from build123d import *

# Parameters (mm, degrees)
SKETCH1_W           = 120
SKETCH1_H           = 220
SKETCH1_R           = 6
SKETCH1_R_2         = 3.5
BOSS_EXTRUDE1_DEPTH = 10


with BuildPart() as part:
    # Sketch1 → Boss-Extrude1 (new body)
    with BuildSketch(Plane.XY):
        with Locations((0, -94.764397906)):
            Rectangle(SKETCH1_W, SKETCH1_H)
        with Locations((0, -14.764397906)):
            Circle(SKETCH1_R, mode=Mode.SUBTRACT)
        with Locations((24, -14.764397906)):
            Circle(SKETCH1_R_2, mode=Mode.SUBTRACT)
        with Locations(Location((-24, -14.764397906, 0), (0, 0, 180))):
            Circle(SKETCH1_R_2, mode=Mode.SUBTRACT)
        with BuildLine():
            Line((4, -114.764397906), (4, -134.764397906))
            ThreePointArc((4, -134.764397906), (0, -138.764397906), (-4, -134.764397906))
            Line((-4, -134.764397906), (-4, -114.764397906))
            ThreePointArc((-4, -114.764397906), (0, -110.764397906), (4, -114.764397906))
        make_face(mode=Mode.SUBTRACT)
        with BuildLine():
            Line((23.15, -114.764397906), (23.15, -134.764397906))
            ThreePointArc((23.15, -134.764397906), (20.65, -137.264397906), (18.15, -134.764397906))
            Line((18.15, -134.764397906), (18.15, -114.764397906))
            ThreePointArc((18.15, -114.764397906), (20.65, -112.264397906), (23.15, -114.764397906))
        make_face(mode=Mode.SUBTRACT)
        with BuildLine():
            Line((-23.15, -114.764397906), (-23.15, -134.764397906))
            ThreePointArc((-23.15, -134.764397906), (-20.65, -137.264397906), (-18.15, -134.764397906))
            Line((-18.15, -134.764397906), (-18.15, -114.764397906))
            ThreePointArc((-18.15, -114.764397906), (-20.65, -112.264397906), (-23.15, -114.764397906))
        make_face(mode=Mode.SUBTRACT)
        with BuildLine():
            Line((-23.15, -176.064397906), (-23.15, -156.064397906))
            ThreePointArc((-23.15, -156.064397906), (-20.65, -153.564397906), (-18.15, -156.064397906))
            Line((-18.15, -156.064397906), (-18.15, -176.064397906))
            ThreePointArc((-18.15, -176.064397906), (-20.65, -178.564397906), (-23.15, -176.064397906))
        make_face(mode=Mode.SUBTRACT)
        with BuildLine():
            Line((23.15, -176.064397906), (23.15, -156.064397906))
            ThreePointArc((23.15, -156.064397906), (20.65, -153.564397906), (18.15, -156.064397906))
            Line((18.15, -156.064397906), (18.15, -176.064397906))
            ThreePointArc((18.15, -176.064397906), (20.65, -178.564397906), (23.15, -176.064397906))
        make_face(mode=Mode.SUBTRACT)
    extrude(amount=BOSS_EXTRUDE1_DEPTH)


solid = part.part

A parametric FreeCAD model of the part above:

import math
import FreeCAD as App
import Part
import Sketcher
from FreeCAD import Vector
Q = App.Units.Quantity


def add_polygon(sketch, points):
    """Adds a closed chain of lines whose ends are joined by coincident constraints."""
    first, n = sketch.GeometryCount, len(points)
    for a, b in zip(points, points[1:] + points[:1]):
        sketch.addGeometry(Part.LineSegment(App.Vector(*a, 0), App.Vector(*b, 0)), False)
    for i in range(n):
        sketch.addConstraint(Sketcher.Constraint("Coincident", first + i, 2, first + (i + 1) % n, 1))

doc = App.newDocument("Part")
body = doc.addObject("PartDesign::Body", "Body")

sketch1 = body.newObject("Sketcher::SketchObject", "Sketch")
sketch1.AttachmentSupport = (doc.getObject("XY_Plane"), [""])
sketch1.MapMode = "FlatFace"
add_polygon(sketch1, [(-60, 15.235602), (-60, -204.764398), (60, -204.764398), (60, 15.235602)])
sketch1.addGeometry(Part.ArcOfCircle(Part.Circle(Vector(-20.65, -176.064398, 0), Vector(0, 0, 1), 2.5), math.radians(180), math.radians(360)), False)
sketch1.addGeometry(Part.LineSegment(Vector(-23.15, -176.064398, 0), Vector(-23.15, -156.064398, 0)), False)
sketch1.addGeometry(Part.ArcOfCircle(Part.Circle(Vector(-20.65, -156.064398, 0), Vector(0, 0, 1), 2.5), math.radians(0), math.radians(180)), False)
sketch1.addGeometry(Part.LineSegment(Vector(-18.15, -156.064398, 0), Vector(-18.15, -176.064398, 0)), False)
sketch1.addGeometry(Part.LineSegment(Vector(-23.15, -134.764398, 0), Vector(-23.15, -114.764398, 0)), False)
sketch1.addGeometry(Part.ArcOfCircle(Part.Circle(Vector(-20.65, -114.764398, 0), Vector(0, 0, 1), 2.5), math.radians(0), math.radians(180)), False)
sketch1.addGeometry(Part.LineSegment(Vector(-18.15, -114.764398, 0), Vector(-18.15, -134.764398, 0)), False)
sketch1.addGeometry(Part.ArcOfCircle(Part.Circle(Vector(-20.65, -134.764398, 0), Vector(0, 0, 1), 2.5), math.radians(180), math.radians(360)), False)
sketch1.addGeometry(Part.LineSegment(Vector(23.15, -156.064398, 0), Vector(23.15, -176.064398, 0)), False)
sketch1.addGeometry(Part.ArcOfCircle(Part.Circle(Vector(20.65, -176.064398, 0), Vector(0, 0, 1), 2.5), math.radians(180), math.radians(360)), False)
sketch1.addGeometry(Part.LineSegment(Vector(18.15, -176.064398, 0), Vector(18.15, -156.064398, 0)), False)
sketch1.addGeometry(Part.ArcOfCircle(Part.Circle(Vector(20.65, -156.064398, 0), Vector(0, 0, 1), 2.5), math.radians(0), math.radians(180)), False)
sketch1.addGeometry(Part.ArcOfCircle(Part.Circle(Vector(0, -114.764398, 0), Vector(0, 0, 1), 4), math.radians(0), math.radians(180)), False)
sketch1.addGeometry(Part.LineSegment(Vector(4, -114.764398, 0), Vector(4, -134.764398, 0)), False)
sketch1.addGeometry(Part.ArcOfCircle(Part.Circle(Vector(0, -134.764398, 0), Vector(0, 0, 1), 4), math.radians(180), math.radians(360)), False)
sketch1.addGeometry(Part.LineSegment(Vector(-4, -134.764398, 0), Vector(-4, -114.764398, 0)), False)
sketch1.addGeometry(Part.ArcOfCircle(Part.Circle(Vector(20.65, -114.764398, 0), Vector(0, 0, 1), 2.5), math.radians(0), math.radians(180)), False)
sketch1.addGeometry(Part.LineSegment(Vector(23.15, -114.764398, 0), Vector(23.15, -134.764398, 0)), False)
sketch1.addGeometry(Part.ArcOfCircle(Part.Circle(Vector(20.65, -134.764398, 0), Vector(0, 0, 1), 2.5), math.radians(180), math.radians(360)), False)
sketch1.addGeometry(Part.LineSegment(Vector(18.15, -134.764398, 0), Vector(18.15, -114.764398, 0)), False)
sketch1.addGeometry(Part.Circle(Vector(-24, -14.764398, 0), Vector(0, 0, 1), 3.5), False)
sketch1.addGeometry(Part.Circle(Vector(0, -14.764398, 0), Vector(0, 0, 1), 6), False)
sketch1.addGeometry(Part.Circle(Vector(24, -14.764398, 0), Vector(0, 0, 1), 3.5), False)
sketch1.addConstraint(Sketcher.Constraint("Tangent", 4, 1, 5, 1))
sketch1.addConstraint(Sketcher.Constraint("Tangent", 5, 2, 6, 2))
sketch1.addConstraint(Sketcher.Constraint("Tangent", 6, 1, 7, 1))
sketch1.addConstraint(Sketcher.Constraint("Tangent", 7, 2, 4, 2))
sketch1.addConstraint(Sketcher.Constraint("Tangent", 8, 2, 9, 2))
sketch1.addConstraint(Sketcher.Constraint("Tangent", 9, 1, 10, 1))
sketch1.addConstraint(Sketcher.Constraint("Tangent", 10, 2, 11, 2))
sketch1.addConstraint(Sketcher.Constraint("Tangent", 11, 1, 8, 1))
sketch1.addConstraint(Sketcher.Constraint("Tangent", 12, 2, 13, 2))
sketch1.addConstraint(Sketcher.Constraint("Tangent", 13, 1, 14, 1))
sketch1.addConstraint(Sketcher.Constraint("Tangent", 14, 2, 15, 2))
sketch1.addConstraint(Sketcher.Constraint("Tangent", 15, 1, 12, 1))
sketch1.addConstraint(Sketcher.Constraint("Tangent", 16, 1, 17, 1))
sketch1.addConstraint(Sketcher.Constraint("Tangent", 17, 2, 18, 2))
sketch1.addConstraint(Sketcher.Constraint("Tangent", 18, 1, 19, 1))
sketch1.addConstraint(Sketcher.Constraint("Tangent", 19, 2, 16, 2))
sketch1.addConstraint(Sketcher.Constraint("Tangent", 20, 1, 21, 1))
sketch1.addConstraint(Sketcher.Constraint("Tangent", 21, 2, 22, 2))
sketch1.addConstraint(Sketcher.Constraint("Tangent", 22, 1, 23, 1))
sketch1.addConstraint(Sketcher.Constraint("Tangent", 23, 2, 20, 2))
sketch1.addConstraint(Sketcher.Constraint("Vertical", 0))
sketch1.addConstraint(Sketcher.Constraint("Horizontal", 1))
sketch1.addConstraint(Sketcher.Constraint("Vertical", 2))
sketch1.addConstraint(Sketcher.Constraint("Horizontal", 3))
sketch1.addConstraint(Sketcher.Constraint("Vertical", 5))
sketch1.addConstraint(Sketcher.Constraint("Vertical", 7))
sketch1.addConstraint(Sketcher.Constraint("Vertical", 8))
sketch1.addConstraint(Sketcher.Constraint("Vertical", 10))
sketch1.addConstraint(Sketcher.Constraint("Vertical", 12))
sketch1.addConstraint(Sketcher.Constraint("Vertical", 14))
sketch1.addConstraint(Sketcher.Constraint("Vertical", 17))
sketch1.addConstraint(Sketcher.Constraint("Vertical", 19))
sketch1.addConstraint(Sketcher.Constraint("Vertical", 21))
sketch1.addConstraint(Sketcher.Constraint("Vertical", 23))
sketch1.addConstraint(Sketcher.Constraint("Equal", 6, 9))
sketch1.addConstraint(Sketcher.Constraint("Equal", 11, 13))
sketch1.addConstraint(Sketcher.Constraint("Equal", 15, 20))
sketch1.addConstraint(Sketcher.Constraint("Equal", 24, 26))
sketch1.addConstraint(Sketcher.Constraint("Symmetric", 4, 3, 13, 3, -2))
sketch1.addConstraint(Sketcher.Constraint("Symmetric", 9, 3, 20, 3, -2))
sketch1.addConstraint(Sketcher.Constraint("Symmetric", 24, 3, 26, 3, -2))
sketch1.addConstraint(Sketcher.Constraint("PointOnObject", 16, 3, -2))
sketch1.addConstraint(Sketcher.Constraint("PointOnObject", 25, 3, -2))
sketch1.addConstraint(Sketcher.Constraint("Horizontal", 6, 3, 15, 3))
sketch1.addConstraint(Sketcher.Constraint("Horizontal", 9, 3, 16, 3))
sketch1.addConstraint(Sketcher.Constraint("Horizontal", 11, 3, 18, 3))
sketch1.addConstraint(Sketcher.Constraint("Horizontal", 18, 3, 22, 3))
sketch1.addConstraint(Sketcher.Constraint("Horizontal", 24, 3, 25, 3))
sketch1.addConstraint(Sketcher.Constraint("Vertical", 6, 3, 9, 3))
sketch1.addConstraint(Sketcher.Constraint("Equal", 7, 8))
sketch1.addConstraint(Sketcher.Constraint("Diameter", 24, Q("7 mm")))
sketch1.addConstraint(Sketcher.Constraint("Diameter", 25, Q("12 mm")))
sketch1.addConstraint(Sketcher.Constraint("Radius", 16, Q("4 mm")))
sketch1.addConstraint(Sketcher.Constraint("Radius", 4, Q("2.5 mm")))
sketch1.addConstraint(Sketcher.Constraint("DistanceX", 1, 1, 1, 2, Q("120 mm")))
sketch1.addConstraint(Sketcher.Constraint("DistanceY", 0, 2, 0, 1, Q("220 mm")))
sketch1.addConstraint(Sketcher.Constraint("DistanceY", 5, 1, 5, 2, Q("20 mm")))
sketch1.addConstraint(Sketcher.Constraint("DistanceX", 24, 3, -1, 1, Q("24 mm")))
sketch1.addConstraint(Sketcher.Constraint("DistanceX", 0, 2, -1, 1, Q("60 mm")))
sketch1.addConstraint(Sketcher.Constraint("DistanceY", 9, 3, 24, 3, Q("100 mm")))
sketch1.addConstraint(Sketcher.Constraint("DistanceY", 0, 2, 11, 3, Q("70 mm")))
sketch1.addConstraint(Sketcher.Constraint("DistanceY", 6, 3, 9, 3, Q("41.3 mm")))
sketch1.addConstraint(Sketcher.Constraint("DistanceX", 4, 3, 13, 3, Q("41.3 mm")))
sketch1.addConstraint(Sketcher.Constraint("DistanceY", 4, 3, -1, 1, Q("176.064398 mm")))
pad1 = body.newObject("PartDesign::Pad", "Pad")
pad1.Profile = sketch1
pad1.Length = 10

doc.recompute()
